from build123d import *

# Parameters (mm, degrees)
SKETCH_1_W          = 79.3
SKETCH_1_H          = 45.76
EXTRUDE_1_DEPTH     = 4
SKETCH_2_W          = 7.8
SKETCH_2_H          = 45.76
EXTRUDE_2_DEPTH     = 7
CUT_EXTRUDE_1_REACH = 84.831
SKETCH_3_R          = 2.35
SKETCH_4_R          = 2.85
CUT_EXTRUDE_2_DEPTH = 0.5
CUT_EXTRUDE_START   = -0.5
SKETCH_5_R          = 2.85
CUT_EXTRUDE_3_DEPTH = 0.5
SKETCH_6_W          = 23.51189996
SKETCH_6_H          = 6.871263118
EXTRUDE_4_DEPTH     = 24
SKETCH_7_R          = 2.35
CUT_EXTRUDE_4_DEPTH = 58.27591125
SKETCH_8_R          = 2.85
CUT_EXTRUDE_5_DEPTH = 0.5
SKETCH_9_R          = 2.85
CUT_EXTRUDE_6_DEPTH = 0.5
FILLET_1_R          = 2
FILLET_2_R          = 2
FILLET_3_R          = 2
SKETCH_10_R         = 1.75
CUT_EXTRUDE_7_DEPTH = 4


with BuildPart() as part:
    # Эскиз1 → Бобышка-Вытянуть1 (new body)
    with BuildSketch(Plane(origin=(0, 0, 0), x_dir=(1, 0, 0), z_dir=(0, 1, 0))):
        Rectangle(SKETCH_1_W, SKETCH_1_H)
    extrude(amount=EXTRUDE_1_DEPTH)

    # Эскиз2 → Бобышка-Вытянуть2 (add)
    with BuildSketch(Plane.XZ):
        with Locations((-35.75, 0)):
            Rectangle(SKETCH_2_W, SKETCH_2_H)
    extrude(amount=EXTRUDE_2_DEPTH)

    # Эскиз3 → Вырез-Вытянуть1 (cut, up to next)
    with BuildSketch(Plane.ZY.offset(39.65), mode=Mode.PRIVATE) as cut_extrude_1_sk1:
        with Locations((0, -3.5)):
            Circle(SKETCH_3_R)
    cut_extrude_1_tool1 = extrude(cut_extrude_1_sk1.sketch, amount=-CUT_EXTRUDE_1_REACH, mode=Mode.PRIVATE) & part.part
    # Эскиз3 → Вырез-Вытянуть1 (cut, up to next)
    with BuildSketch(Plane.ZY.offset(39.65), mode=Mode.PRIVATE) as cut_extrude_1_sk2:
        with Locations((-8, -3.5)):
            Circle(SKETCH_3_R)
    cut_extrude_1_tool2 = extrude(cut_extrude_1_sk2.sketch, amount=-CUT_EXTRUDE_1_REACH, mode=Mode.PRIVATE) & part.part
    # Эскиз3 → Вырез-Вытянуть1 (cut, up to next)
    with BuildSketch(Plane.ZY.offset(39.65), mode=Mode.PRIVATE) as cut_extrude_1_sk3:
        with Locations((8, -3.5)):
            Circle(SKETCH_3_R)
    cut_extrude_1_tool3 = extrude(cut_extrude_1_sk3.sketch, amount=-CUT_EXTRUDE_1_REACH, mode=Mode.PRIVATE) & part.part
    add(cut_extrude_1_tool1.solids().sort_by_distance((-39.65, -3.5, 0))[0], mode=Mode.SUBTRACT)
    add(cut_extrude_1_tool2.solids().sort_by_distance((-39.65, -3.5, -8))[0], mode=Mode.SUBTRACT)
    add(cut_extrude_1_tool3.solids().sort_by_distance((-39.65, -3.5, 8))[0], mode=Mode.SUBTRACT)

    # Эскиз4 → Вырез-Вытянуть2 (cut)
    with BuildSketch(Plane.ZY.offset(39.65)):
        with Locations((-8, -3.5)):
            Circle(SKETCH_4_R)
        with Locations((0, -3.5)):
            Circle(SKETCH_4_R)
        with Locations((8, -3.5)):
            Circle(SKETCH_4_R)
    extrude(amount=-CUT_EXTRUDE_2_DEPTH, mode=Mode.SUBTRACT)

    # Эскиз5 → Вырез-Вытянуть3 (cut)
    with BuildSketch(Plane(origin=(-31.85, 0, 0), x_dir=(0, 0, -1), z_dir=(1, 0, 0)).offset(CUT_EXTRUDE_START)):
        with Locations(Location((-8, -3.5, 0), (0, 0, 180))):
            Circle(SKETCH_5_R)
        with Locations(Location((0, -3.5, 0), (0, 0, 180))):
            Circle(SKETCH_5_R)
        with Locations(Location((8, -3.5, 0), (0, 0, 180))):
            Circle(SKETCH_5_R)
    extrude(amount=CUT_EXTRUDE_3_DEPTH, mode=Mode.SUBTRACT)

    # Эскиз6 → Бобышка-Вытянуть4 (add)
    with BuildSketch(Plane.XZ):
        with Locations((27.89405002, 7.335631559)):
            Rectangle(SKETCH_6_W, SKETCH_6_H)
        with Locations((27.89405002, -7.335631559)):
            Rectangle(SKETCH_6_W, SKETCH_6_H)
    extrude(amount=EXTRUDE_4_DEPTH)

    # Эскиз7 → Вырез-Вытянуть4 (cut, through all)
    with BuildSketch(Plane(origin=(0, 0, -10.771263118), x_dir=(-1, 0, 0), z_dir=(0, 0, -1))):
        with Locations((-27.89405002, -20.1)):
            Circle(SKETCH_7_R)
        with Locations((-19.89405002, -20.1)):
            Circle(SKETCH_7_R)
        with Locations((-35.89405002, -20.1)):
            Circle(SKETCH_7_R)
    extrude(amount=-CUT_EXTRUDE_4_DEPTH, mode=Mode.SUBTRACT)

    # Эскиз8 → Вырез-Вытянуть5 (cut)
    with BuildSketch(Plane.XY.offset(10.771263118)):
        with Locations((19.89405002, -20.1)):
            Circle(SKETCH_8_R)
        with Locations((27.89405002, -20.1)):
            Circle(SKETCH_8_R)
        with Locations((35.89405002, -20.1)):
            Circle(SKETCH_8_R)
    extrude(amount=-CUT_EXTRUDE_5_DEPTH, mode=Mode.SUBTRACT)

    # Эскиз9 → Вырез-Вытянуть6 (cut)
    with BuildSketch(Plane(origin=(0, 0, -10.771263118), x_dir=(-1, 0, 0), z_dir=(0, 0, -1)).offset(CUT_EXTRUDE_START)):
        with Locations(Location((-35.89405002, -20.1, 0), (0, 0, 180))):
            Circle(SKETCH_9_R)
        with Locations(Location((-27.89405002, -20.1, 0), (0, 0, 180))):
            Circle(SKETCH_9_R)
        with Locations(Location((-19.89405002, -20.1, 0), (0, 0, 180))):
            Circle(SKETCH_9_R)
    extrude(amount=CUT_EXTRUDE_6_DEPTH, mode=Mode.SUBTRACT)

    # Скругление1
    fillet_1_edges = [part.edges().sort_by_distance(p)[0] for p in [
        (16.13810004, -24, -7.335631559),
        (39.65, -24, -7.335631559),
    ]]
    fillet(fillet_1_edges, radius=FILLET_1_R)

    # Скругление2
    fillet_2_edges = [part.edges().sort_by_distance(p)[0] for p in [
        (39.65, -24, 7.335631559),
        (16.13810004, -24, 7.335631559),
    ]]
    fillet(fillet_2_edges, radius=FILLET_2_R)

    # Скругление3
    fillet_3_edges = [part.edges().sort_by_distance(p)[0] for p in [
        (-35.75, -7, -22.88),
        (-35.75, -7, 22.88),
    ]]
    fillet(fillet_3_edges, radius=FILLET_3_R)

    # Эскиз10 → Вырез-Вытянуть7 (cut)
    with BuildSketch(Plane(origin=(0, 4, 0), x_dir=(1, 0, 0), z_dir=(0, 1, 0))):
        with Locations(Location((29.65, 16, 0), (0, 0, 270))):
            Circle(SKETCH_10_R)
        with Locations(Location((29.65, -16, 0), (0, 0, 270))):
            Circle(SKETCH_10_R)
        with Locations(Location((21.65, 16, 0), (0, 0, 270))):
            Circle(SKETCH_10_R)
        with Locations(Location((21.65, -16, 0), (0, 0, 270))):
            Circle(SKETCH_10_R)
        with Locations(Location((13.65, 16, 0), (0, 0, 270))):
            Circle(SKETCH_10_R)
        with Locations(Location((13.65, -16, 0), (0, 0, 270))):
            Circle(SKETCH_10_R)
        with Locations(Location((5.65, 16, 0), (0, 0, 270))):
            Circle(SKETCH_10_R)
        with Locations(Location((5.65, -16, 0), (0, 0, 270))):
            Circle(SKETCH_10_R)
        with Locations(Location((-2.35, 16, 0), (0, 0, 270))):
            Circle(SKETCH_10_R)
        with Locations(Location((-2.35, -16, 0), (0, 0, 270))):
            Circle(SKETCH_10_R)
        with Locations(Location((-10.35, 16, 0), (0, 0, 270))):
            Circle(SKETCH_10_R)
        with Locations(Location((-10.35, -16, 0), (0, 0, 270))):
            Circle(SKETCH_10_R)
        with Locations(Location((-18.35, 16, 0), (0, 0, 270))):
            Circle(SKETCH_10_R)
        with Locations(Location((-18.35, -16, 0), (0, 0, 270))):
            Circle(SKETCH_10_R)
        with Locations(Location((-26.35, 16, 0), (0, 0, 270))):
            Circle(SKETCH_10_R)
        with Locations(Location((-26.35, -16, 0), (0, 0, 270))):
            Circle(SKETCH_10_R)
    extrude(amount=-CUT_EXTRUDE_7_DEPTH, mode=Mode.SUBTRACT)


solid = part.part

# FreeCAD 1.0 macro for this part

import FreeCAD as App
import Part
import Sketcher

V = App.Vector
Q = App.Units.Quantity


def edges_at(feature, points):
    """Names of the edges that pass closest to the given points."""
    edges = feature.Shape.Edges
    near = lambda p: min(range(len(edges)), key=lambda i: edges[i].distToShape(Part.Vertex(*p))[0])
    return sorted({f"Edge{near(p) + 1}" for p in points})

doc = App.newDocument("Part")
body = doc.addObject("PartDesign::Body", "Body")

sketch1 = doc.addObject("Sketcher::SketchObject", "Sketch")
body.addObject(sketch1)
sketch1.AttachmentSupport = (doc.XZ_Plane, [""])
sketch1.MapMode = "FlatFace"
sketch1.addGeometry([
    Part.LineSegment(V(-40, -23, 0), V(-40, 23, 0)),
    Part.LineSegment(V(-40, 23, 0), V(40, 23, 0)),
    Part.LineSegment(V(40, 23, 0), V(40, -23, 0)),
    Part.LineSegment(V(40, -23, 0), V(-40, -23, 0)),
], False)
sketch1.addConstraint([
    Sketcher.Constraint("Coincident", 0, 2, 1, 1),
    Sketcher.Constraint("Coincident", 1, 2, 2, 1),
    Sketcher.Constraint("Coincident", 2, 2, 3, 1),
    Sketcher.Constraint("Coincident", 3, 2, 0, 1),
    Sketcher.Constraint("Vertical", 0),
    Sketcher.Constraint("Horizontal", 1),
    Sketcher.Constraint("Vertical", 2),
    Sketcher.Constraint("Horizontal", 3),
    Sketcher.Constraint("Symmetric", 0, 2, 2, 2, -1, 1),
    Sketcher.Constraint("DistanceX", 1, 1, 1, 2, Q("79.3 mm")),
    Sketcher.Constraint("DistanceY", 0, 1, 0, 2, Q("45.76 mm")),
])
pad1 = doc.addObject("PartDesign::Pad", "Pad")
body.addObject(pad1)
pad1.Profile = sketch1
pad1.Length = 4
pad1.Reversed = True

sketch2 = doc.addObject("Sketcher::SketchObject", "Sketch001")
body.addObject(sketch2)
sketch2.AttachmentSupport = (doc.XZ_Plane, [""])
sketch2.MapMode = "FlatFace"
sketch2.addGeometry([
    Part.LineSegment(V(-40, 23, 0), V(-40, -23, 0)),
    Part.LineSegment(V(-40, -23, 0), V(-32, -23, 0)),
    Part.LineSegment(V(-32, -23, 0), V(-32, 23, 0)),
    Part.LineSegment(V(-32, 23, 0), V(-40, 23, 0)),
], False)
sketch2.addConstraint([
    Sketcher.Constraint("Coincident", 0, 2, 1, 1),
    Sketcher.Constraint("Coincident", 1, 2, 2, 1),
    Sketcher.Constraint("Coincident", 2, 2, 3, 1),
    Sketcher.Constraint("Coincident", 3, 2, 0, 1),
    Sketcher.Constraint("Vertical", 0),
    Sketcher.Constraint("Horizontal", 1),
    Sketcher.Constraint("Vertical", 2),
    Sketcher.Constraint("Horizontal", 3),
    Sketcher.Constraint("DistanceX", 1, 1, 1, 2, Q("7.8 mm")),
    Sketcher.Constraint("DistanceY", 0, 2, 0, 1, Q("45.76 mm")),
    Sketcher.Constraint("DistanceX", 0, 2, -1, 1, Q("39.65 mm")),
    Sketcher.Constraint("DistanceY", 0, 2, -1, 1, Q("22.88 mm")),
])
pad2 = doc.addObject("PartDesign::Pad", "Pad001")
body.addObject(pad2)
pad2.Profile = sketch2
pad2.Length = 7

sketch3 = doc.addObject("Sketcher::SketchObject", "Sketch002")
body.addObject(sketch3)
sketch3.AttachmentSupport = (doc.YZ_Plane, [""])
sketch3.MapMode = "FlatFace"
sketch3.AttachmentOffset = App.Placement(V(0, 0, -39.65), App.Rotation())
sketch3.addGeometry(Part.Circle(V(-3.5, 0, 0), V(0, 0, 1), 2.4), False)
sketch3.addConstraint([
    Sketcher.Constraint("PointOnObject", 0, 3, -1),
    Sketcher.Constraint("Diameter", 0, Q("4.7 mm")),
    Sketcher.Constraint("DistanceX", 0, 3, -1, 1, Q("3.5 mm")),
])
pocket1 = doc.addObject("PartDesign::Pocket", "Pocket")
body.addObject(pocket1)
pocket1.Profile = sketch3
pocket1.Type = "UpToFirst"
pocket1.Reversed = True

sketch4 = doc.addObject("Sketcher::SketchObject", "Sketch003")
body.addObject(sketch4)
sketch4.AttachmentSupport = (doc.YZ_Plane, [""])
sketch4.MapMode = "FlatFace"
sketch4.AttachmentOffset = App.Placement(V(0, 0, -39.65), App.Rotation())
sketch4.addGeometry(Part.Circle(V(-3.5, -8, 0), V(0, 0, 1), 2.4), False)
sketch4.addConstraint([
    Sketcher.Constraint("Diameter", 0, Q("4.7 mm")),
    Sketcher.Constraint("DistanceY", 0, 3, -1, 1, Q("8 mm")),
    Sketcher.Constraint("DistanceX", 0, 3, -1, 1, Q("3.5 mm")),
])
pocket2 = doc.addObject("PartDesign::Pocket", "Pocket001")
body.addObject(pocket2)
pocket2.Profile = sketch4
pocket2.Type = "UpToFirst"
pocket2.Reversed = True

sketch5 = doc.addObject("Sketcher::SketchObject", "Sketch004")
body.addObject(sketch5)
sketch5.AttachmentSupport = (doc.YZ_Plane, [""])
sketch5.MapMode = "FlatFace"
sketch5.AttachmentOffset = App.Placement(V(0, 0, -39.65), App.Rotation())
sketch5.addGeometry(Part.Circle(V(-3.5, 8, 0), V(0, 0, 1), 2.4), False)
sketch5.addConstraint([
    Sketcher.Constraint("Diameter", 0, Q("4.7 mm")),
    Sketcher.Constraint("DistanceY", -1, 1, 0, 3, Q("8 mm")),
    Sketcher.Constraint("DistanceX", 0, 3, -1, 1, Q("3.5 mm")),
])
pocket3 = doc.addObject("PartDesign::Pocket", "Pocket002")
body.addObject(pocket3)
pocket3.Profile = sketch5
pocket3.Type = "UpToFirst"
pocket3.Reversed = True

sketch6 = doc.addObject("Sketcher::SketchObject", "Sketch005")
body.addObject(sketch6)
sketch6.AttachmentSupport = (doc.YZ_Plane, [""])
sketch6.MapMode = "FlatFace"
sketch6.AttachmentOffset = App.Placement(V(0, 0, -39.65), App.Rotation())
sketch6.addGeometry([
    Part.Circle(V(-3.5, -8, 0), V(0, 0, 1), 2.9),
    Part.Circle(V(-3.5, 0, 0), V(0, 0, 1), 2.9),
    Part.Circle(V(-3.5, 8, 0), V(0, 0, 1), 2.9),
], False)
sketch6.addConstraint([
    Sketcher.Constraint("Equal", 0, 1),
    Sketcher.Constraint("Equal", 1, 2),
    Sketcher.Constraint("Symmetric", 0, 3, 2, 3, -1),
    Sketcher.Constraint("PointOnObject", 1, 3, -1),
    Sketcher.Constraint("Vertical", 0, 3, 1, 3),
    Sketcher.Constraint("Diameter", 0, Q("5.7 mm")),
    Sketcher.Constraint("DistanceY", 0, 3, -1, 1, Q("8 mm")),
    Sketcher.Constraint("DistanceX", 0, 3, -1, 1, Q("3.5 mm")),
])
pocket4 = doc.addObject("PartDesign::Pocket", "Pocket003")
body.addObject(pocket4)
pocket4.Profile = sketch6
pocket4.Length = 0.5
pocket4.Reversed = True

sketch7 = doc.addObject("Sketcher::SketchObject", "Sketch006")
body.addObject(sketch7)
sketch7.AttachmentSupport = (doc.YZ_Plane, [""])
sketch7.MapMode = "FlatFace"
sketch7.AttachmentOffset = App.Placement(V(0, 0, -32.35), App.Rotation())
sketch7.addGeometry([
    Part.Circle(V(-3.5, 8, 0), V(0, 0, 1), 2.9),
    Part.Circle(V(-3.5, 0, 0), V(0, 0, 1), 2.9),
    Part.Circle(V(-3.5, -8, 0), V(0, 0, 1), 2.9),
], False)
sketch7.addConstraint([
    Sketcher.Constraint("Equal", 0, 1),
    Sketcher.Constraint("Equal", 1, 2),
    Sketcher.Constraint("Symmetric", 0, 3, 2, 3, -1),
    Sketcher.Constraint("PointOnObject", 1, 3, -1),
    Sketcher.Constraint("Vertical", 0, 3, 1, 3),
    Sketcher.Constraint("Diameter", 0, Q("5.7 mm")),
    Sketcher.Constraint("DistanceY", -1, 1, 0, 3, Q("8 mm")),
    Sketcher.Constraint("DistanceX", 0, 3, -1, 1, Q("3.5 mm")),
])
pocket5 = doc.addObject("PartDesign::Pocket", "Pocket004")
body.addObject(pocket5)
pocket5.Profile = sketch7
pocket5.Length = 0.5
pocket5.Reversed = True

sketch8 = doc.addObject("Sketcher::SketchObject", "Sketch007")
body.addObject(sketch8)
sketch8.AttachmentSupport = (doc.XZ_Plane, [""])
sketch8.MapMode = "FlatFace"
sketch8.addGeometry([
    Part.LineSegment(V(16, 11, 0), V(16, 4, 0)),
    Part.LineSegment(V(16, 4, 0), V(40, 4, 0)),
    Part.LineSegment(V(40, 4, 0), V(40, 11, 0)),
    Part.LineSegment(V(40, 11, 0), V(16, 11, 0)),
    Part.LineSegment(V(16, -4, 0), V(16, -11, 0)),
    Part.LineSegment(V(16, -11, 0), V(40, -11, 0)),
    Part.LineSegment(V(40, -11, 0), V(40, -4, 0)),
    Part.LineSegment(V(40, -4, 0), V(16, -4, 0)),
], False)
sketch8.addConstraint([
    Sketcher.Constraint("Coincident", 0, 2, 1, 1),
    Sketcher.Constraint("Coincident", 1, 2, 2, 1),
    Sketcher.Constraint("Coincident", 2, 2, 3, 1),
    Sketcher.Constraint("Coincident", 3, 2, 0, 1),
    Sketcher.Constraint("Coincident", 4, 2, 5, 1),
    Sketcher.Constraint("Coincident", 5, 2, 6, 1),
    Sketcher.Constraint("Coincident", 6, 2, 7, 1),
    Sketcher.Constraint("Coincident", 7, 2, 4, 1),
    Sketcher.Constraint("Vertical", 0),
    Sketcher.Constraint("Horizontal", 1),
    Sketcher.Constraint("Vertical", 2),
    Sketcher.Constraint("Horizontal", 3),
    Sketcher.Constraint("Vertical", 4),
    Sketcher.Constraint("Horizontal", 5),
    Sketcher.Constraint("Vertical", 6),
    Sketcher.Constraint("Horizontal", 7),
    Sketcher.Constraint("Symmetric", 3, 2, 4, 2, -1),
    Sketcher.Constraint("Symmetric", 1, 2, 6, 2, -1),
    Sketcher.Constraint("DistanceY", -1, 1, 0, 2, Q("3.9 mm")),
    Sketcher.Constraint("DistanceX", -1, 1, 1, 2, Q("39.65 mm")),
    Sketcher.Constraint("DistanceX", 1, 1, 1, 2, Q("23.5119 mm")),
    Sketcher.Constraint("DistanceY", 0, 2, 0, 1, Q("6.871263 mm")),
])
pad3 = doc.addObject("PartDesign::Pad", "Pad002")
body.addObject(pad3)
pad3.Profile = sketch8
pad3.Length = 24

sketch9 = doc.addObject("Sketcher::SketchObject", "Sketch008")
body.addObject(sketch9)
sketch9.AttachmentSupport = (doc.XY_Plane, [""])
sketch9.MapMode = "FlatFace"
sketch9.AttachmentOffset = App.Placement(V(0, 0, -10.771263), App.Rotation())
sketch9.addGeometry([
    Part.Circle(V(27.9, -20.1, 0), V(0, 0, 1), 2.4),
    Part.Circle(V(19.9, -20.1, 0), V(0, 0, 1), 2.4),
    Part.Circle(V(35.9, -20.1, 0), V(0, 0, 1), 2.4),
], False)
sketch9.addConstraint([
    Sketcher.Constraint("Equal", 0, 1),
    Sketcher.Constraint("Equal", 1, 2),
    Sketcher.Constraint("Horizontal", 0, 3, 1, 3),
    Sketcher.Constraint("Horizontal", 1, 3, 2, 3),
    Sketcher.Constraint("Diameter", 0, Q("4.7 mm")),
    Sketcher.Constraint("DistanceX", 1, 3, 0, 3, Q("8 mm")),
    Sketcher.Constraint("DistanceX", 0, 3, 2, 3, Q("8 mm")),
    Sketcher.Constraint("DistanceY", 0, 3, -1, 1, Q("20.1 mm")),
    Sketcher.Constraint("DistanceX", -1, 1, 0, 3, Q("27.89405 mm")),
])
pocket6 = doc.addObject("PartDesign::Pocket", "Pocket005")
body.addObject(pocket6)
pocket6.Profile = sketch9
pocket6.Type = "ThroughAll"
pocket6.Reversed = True

sketch10 = doc.addObject("Sketcher::SketchObject", "Sketch009")
body.addObject(sketch10)
sketch10.AttachmentSupport = (doc.XY_Plane, [""])
sketch10.MapMode = "FlatFace"
sketch10.AttachmentOffset = App.Placement(V(0, 0, 10.771263), App.Rotation())
sketch10.addGeometry([
    Part.Circle(V(19.9, -20.1, 0), V(0, 0, 1), 2.9),
    Part.Circle(V(27.9, -20.1, 0), V(0, 0, 1), 2.9),
    Part.Circle(V(35.9, -20.1, 0), V(0, 0, 1), 2.9),
], False)
sketch10.addConstraint([
    Sketcher.Constraint("Equal", 0, 1),
    Sketcher.Constraint("Equal", 1, 2),
    Sketcher.Constraint("Horizontal", 0, 3, 1, 3),
    Sketcher.Constraint("Horizontal", 1, 3, 2, 3),
    Sketcher.Constraint("Diameter", 0, Q("5.7 mm")),
    Sketcher.Constraint("DistanceX", 0, 3, 1, 3, Q("8 mm")),
    Sketcher.Constraint("DistanceX", 1, 3, 2, 3, Q("8 mm")),
    Sketcher.Constraint("DistanceY", 0, 3, -1, 1, Q("20.1 mm")),
    Sketcher.Constraint("DistanceX", -1, 1, 0, 3, Q("19.89405 mm")),
])
pocket7 = doc.addObject("PartDesign::Pocket", "Pocket006")
body.addObject(pocket7)
pocket7.Profile = sketch10
pocket7.Length = 0.5

sketch11 = doc.addObject("Sketcher::SketchObject", "Sketch010")
body.addObject(sketch11)
sketch11.AttachmentSupport = (doc.XY_Plane, [""])
sketch11.MapMode = "FlatFace"
sketch11.AttachmentOffset = App.Placement(V(0, 0, -10.271263), App.Rotation())
sketch11.addGeometry([
    Part.Circle(V(35.9, -20.1, 0), V(0, 0, 1), 2.9),
    Part.Circle(V(27.9, -20.1, 0), V(0, 0, 1), 2.9),
    Part.Circle(V(19.9, -20.1, 0), V(0, 0, 1), 2.9),
], False)
sketch11.addConstraint([
    Sketcher.Constraint("Equal", 0, 1),
    Sketcher.Constraint("Equal", 1, 2),
    Sketcher.Constraint("Horizontal", 0, 3, 1, 3),
    Sketcher.Constraint("Horizontal", 1, 3, 2, 3),
    Sketcher.Constraint("Diameter", 0, Q("5.7 mm")),
    Sketcher.Constraint("DistanceX", 1, 3, 0, 3, Q("8 mm")),
    Sketcher.Constraint("DistanceX", 2, 3, 1, 3, Q("8 mm")),
    Sketcher.Constraint("DistanceY", 0, 3, -1, 1, Q("20.1 mm")),
    Sketcher.Constraint("DistanceX", -1, 1, 0, 3, Q("35.89405 mm")),
])
pocket8 = doc.addObject("PartDesign::Pocket", "Pocket007")
body.addObject(pocket8)
pocket8.Profile = sketch11
pocket8.Length = 0.5
doc.recompute()

fillet = doc.addObject("PartDesign::Fillet", "Fillet")
body.addObject(fillet)
fillet.Base = (pocket8, edges_at(pocket8, [(16.138, -24, -7.336), (39.65, -24, -7.336)]))
fillet.Radius = 2
doc.recompute()

fillet2 = doc.addObject("PartDesign::Fillet", "Fillet001")
body.addObject(fillet2)
fillet2.Base = (fillet, edges_at(fillet, [(39.65, -24, 7.336), (16.138, -24, 7.336)]))
fillet2.Radius = 2
doc.recompute()

fillet3 = doc.addObject("PartDesign::Fillet", "Fillet002")
body.addObject(fillet3)
fillet3.Base = (fillet2, edges_at(fillet2, [(-35.75, -7, -22.88), (-35.75, -7, 22.88)]))
fillet3.Radius = 2

sketch12 = doc.addObject("Sketcher::SketchObject", "Sketch011")
body.addObject(sketch12)
sketch12.AttachmentSupport = (doc.XZ_Plane, [""])
sketch12.MapMode = "FlatFace"
sketch12.AttachmentOffset = App.Placement(V(0, 0, -4), App.Rotation())
sketch12.addGeometry([
    Part.Circle(V(29.6, -16, 0), V(0, 0, 1), 1.8),
    Part.Circle(V(29.6, 16, 0), V(0, 0, 1), 1.8),
    Part.Circle(V(21.6, -16, 0), V(0, 0, 1), 1.8),
    Part.Circle(V(21.6, 16, 0), V(0, 0, 1), 1.8),
    Part.Circle(V(13.7, -16, 0), V(0, 0, 1), 1.8),
    Part.Circle(V(13.7, 16, 0), V(0, 0, 1), 1.8),
    Part.Circle(V(5.7, -16, 0), V(0, 0, 1), 1.8),
    Part.Circle(V(5.7, 16, 0), V(0, 0, 1), 1.8),
    Part.Circle(V(-2.4, -16, 0), V(0, 0, 1), 1.8),
    Part.Circle(V(-2.4, 16, 0), V(0, 0, 1), 1.8),
    Part.Circle(V(-10.3, -16, 0), V(0, 0, 1), 1.8),
    Part.Circle(V(-10.3, 16, 0), V(0, 0, 1), 1.8),
    Part.Circle(V(-18.4, -16, 0), V(0, 0, 1), 1.8),
    Part.Circle(V(-18.4, 16, 0), V(0, 0, 1), 1.8),
    Part.Circle(V(-26.4, -16, 0), V(0, 0, 1), 1.8),
    Part.Circle(V(-26.4, 16, 0), V(0, 0, 1), 1.8),
], False)
sketch12.addConstraint([
    Sketcher.Constraint("Equal", 0, 1),
    Sketcher.Constraint("Equal", 1, 2),
    Sketcher.Constraint("Equal", 2, 3),
    Sketcher.Constraint("Equal", 3, 4),
    Sketcher.Constraint("Equal", 4, 5),
    Sketcher.Constraint("Equal", 5, 6),
    Sketcher.Constraint("Equal", 6, 7),
    Sketcher.Constraint("Equal", 7, 8),
    Sketcher.Constraint("Equal", 8, 9),
    Sketcher.Constraint("Equal", 9, 10),
    Sketcher.Constraint("Equal", 10, 11),
    Sketcher.Constraint("Equal", 11, 12),
    Sketcher.Constraint("Equal", 12, 13),
    Sketcher.Constraint("Equal", 13, 14),
    Sketcher.Constraint("Equal", 14, 15),
    Sketcher.Constraint("Symmetric", 0, 3, 1, 3, -1),
    Sketcher.Constraint("Symmetric", 2, 3, 3, 3, -1),
    Sketcher.Constraint("Symmetric", 4, 3, 5, 3, -1),
    Sketcher.Constraint("Symmetric", 6, 3, 7, 3, -1),
    Sketcher.Constraint("Symmetric", 8, 3, 9, 3, -1),
    Sketcher.Constraint("Symmetric", 10, 3, 11, 3, -1),
    Sketcher.Constraint("Symmetric", 12, 3, 13, 3, -1),
    Sketcher.Constraint("Symmetric", 14, 3, 15, 3, -1),
    Sketcher.Constraint("Horizontal", 0, 3, 2, 3),
    Sketcher.Constraint("Horizontal", 2, 3, 4, 3),
    Sketcher.Constraint("Horizontal", 4, 3, 6, 3),
    Sketcher.Constraint("Horizontal", 6, 3, 8, 3),
    Sketcher.Constraint("Horizontal", 8, 3, 10, 3),
    Sketcher.Constraint("Horizontal", 10, 3, 12, 3),
    Sketcher.Constraint("Horizontal", 12, 3, 14, 3),
    Sketcher.Constraint("Diameter", 0, Q("3.5 mm")),
    Sketcher.Constraint("DistanceY", 0, 3, -1, 1, Q("16 mm")),
    Sketcher.Constraint("DistanceX", 2, 3, 0, 3, Q("8 mm")),
    Sketcher.Constraint("DistanceX", 4, 3, 2, 3, Q("8 mm")),
    Sketcher.Constraint("DistanceX", 6, 3, 4, 3, Q("8 mm")),
    Sketcher.Constraint("DistanceX", 8, 3, 6, 3, Q("8 mm")),
    Sketcher.Constraint("DistanceX", 10, 3, 8, 3, Q("8 mm")),
    Sketcher.Constraint("DistanceX", 12, 3, 10, 3, Q("8 mm")),
    Sketcher.Constraint("DistanceX", 14, 3, 12, 3, Q("8 mm")),
    Sketcher.Constraint("DistanceX", -1, 1, 0, 3, Q("29.65 mm")),
])
pocket9 = doc.addObject("PartDesign::Pocket", "Pocket008")
body.addObject(pocket9)
pocket9.Profile = sketch12
pocket9.Length = 4
pocket9.Reversed = True

doc.recompute()
